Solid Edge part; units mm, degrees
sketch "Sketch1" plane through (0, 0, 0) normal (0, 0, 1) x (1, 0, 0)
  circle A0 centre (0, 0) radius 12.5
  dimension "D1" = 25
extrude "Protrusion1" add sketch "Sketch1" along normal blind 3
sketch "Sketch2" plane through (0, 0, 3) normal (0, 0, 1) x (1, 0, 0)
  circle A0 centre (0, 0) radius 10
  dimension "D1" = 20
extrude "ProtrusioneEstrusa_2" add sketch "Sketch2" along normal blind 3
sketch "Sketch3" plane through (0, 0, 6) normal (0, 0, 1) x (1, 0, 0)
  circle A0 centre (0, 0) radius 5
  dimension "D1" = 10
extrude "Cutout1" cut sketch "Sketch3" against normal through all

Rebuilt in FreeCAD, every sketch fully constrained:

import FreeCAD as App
import Part
import Sketcher
from FreeCAD import Vector
Q = App.Units.Quantity

doc = App.newDocument("Part")
body = doc.addObject("PartDesign::Body", "Body")

# Sketch on XY plane
sketch1 = body.newObject("Sketcher::SketchObject", "Sketch")
sketch1.AttachmentSupport = (doc.getObject("XY_Plane"), [""])
sketch1.MapMode = "FlatFace"
sketch1.addGeometry(Part.Circle(Vector(0, 0, 0), Vector(0, 0, 1), 12), False)
sketch1.addConstraint([
    Sketcher.Constraint("Coincident", 0, 3, -1, 1),
    Sketcher.Constraint("Diameter", 0, Q("25 mm")),
])
pad1 = body.newObject("PartDesign::Pad", "Pad")
pad1.Profile = sketch1
pad1.Length = 3

# Sketch on XY plane
sketch2 = body.newObject("Sketcher::SketchObject", "Sketch001")
sketch2.AttachmentSupport = (doc.getObject("XY_Plane"), [""])
sketch2.MapMode = "FlatFace"
sketch2.AttachmentOffset = App.Placement(Vector(0, 0, 3), App.Rotation())
sketch2.addGeometry(Part.Circle(Vector(0, 0, 0), Vector(0, 0, 1), 10), False)
sketch2.addConstraint([
    Sketcher.Constraint("Coincident", 0, 3, -1, 1),
    Sketcher.Constraint("Diameter", 0, Q("20 mm")),
])
pad2 = body.newObject("PartDesign::Pad", "Pad001")
pad2.Profile = sketch2
pad2.Length = 3

# Sketch on XY plane
sketch3 = body.newObject("Sketcher::SketchObject", "Sketch002")
sketch3.AttachmentSupport = (doc.getObject("XY_Plane"), [""])
sketch3.MapMode = "FlatFace"
sketch3.AttachmentOffset = App.Placement(Vector(0, 0, 6), App.Rotation())
sketch3.addGeometry(Part.Circle(Vector(0, 0, 0), Vector(0, 0, 1), 5), False)
sketch3.addConstraint([
    Sketcher.Constraint("Coincident", 0, 3, -1, 1),
    Sketcher.Constraint("Diameter", 0, Q("10 mm")),
])
pocket1 = body.newObject("PartDesign::Pocket", "Pocket")
pocket1.Profile = sketch3
pocket1.Type = "ThroughAll"

doc.recompute()
